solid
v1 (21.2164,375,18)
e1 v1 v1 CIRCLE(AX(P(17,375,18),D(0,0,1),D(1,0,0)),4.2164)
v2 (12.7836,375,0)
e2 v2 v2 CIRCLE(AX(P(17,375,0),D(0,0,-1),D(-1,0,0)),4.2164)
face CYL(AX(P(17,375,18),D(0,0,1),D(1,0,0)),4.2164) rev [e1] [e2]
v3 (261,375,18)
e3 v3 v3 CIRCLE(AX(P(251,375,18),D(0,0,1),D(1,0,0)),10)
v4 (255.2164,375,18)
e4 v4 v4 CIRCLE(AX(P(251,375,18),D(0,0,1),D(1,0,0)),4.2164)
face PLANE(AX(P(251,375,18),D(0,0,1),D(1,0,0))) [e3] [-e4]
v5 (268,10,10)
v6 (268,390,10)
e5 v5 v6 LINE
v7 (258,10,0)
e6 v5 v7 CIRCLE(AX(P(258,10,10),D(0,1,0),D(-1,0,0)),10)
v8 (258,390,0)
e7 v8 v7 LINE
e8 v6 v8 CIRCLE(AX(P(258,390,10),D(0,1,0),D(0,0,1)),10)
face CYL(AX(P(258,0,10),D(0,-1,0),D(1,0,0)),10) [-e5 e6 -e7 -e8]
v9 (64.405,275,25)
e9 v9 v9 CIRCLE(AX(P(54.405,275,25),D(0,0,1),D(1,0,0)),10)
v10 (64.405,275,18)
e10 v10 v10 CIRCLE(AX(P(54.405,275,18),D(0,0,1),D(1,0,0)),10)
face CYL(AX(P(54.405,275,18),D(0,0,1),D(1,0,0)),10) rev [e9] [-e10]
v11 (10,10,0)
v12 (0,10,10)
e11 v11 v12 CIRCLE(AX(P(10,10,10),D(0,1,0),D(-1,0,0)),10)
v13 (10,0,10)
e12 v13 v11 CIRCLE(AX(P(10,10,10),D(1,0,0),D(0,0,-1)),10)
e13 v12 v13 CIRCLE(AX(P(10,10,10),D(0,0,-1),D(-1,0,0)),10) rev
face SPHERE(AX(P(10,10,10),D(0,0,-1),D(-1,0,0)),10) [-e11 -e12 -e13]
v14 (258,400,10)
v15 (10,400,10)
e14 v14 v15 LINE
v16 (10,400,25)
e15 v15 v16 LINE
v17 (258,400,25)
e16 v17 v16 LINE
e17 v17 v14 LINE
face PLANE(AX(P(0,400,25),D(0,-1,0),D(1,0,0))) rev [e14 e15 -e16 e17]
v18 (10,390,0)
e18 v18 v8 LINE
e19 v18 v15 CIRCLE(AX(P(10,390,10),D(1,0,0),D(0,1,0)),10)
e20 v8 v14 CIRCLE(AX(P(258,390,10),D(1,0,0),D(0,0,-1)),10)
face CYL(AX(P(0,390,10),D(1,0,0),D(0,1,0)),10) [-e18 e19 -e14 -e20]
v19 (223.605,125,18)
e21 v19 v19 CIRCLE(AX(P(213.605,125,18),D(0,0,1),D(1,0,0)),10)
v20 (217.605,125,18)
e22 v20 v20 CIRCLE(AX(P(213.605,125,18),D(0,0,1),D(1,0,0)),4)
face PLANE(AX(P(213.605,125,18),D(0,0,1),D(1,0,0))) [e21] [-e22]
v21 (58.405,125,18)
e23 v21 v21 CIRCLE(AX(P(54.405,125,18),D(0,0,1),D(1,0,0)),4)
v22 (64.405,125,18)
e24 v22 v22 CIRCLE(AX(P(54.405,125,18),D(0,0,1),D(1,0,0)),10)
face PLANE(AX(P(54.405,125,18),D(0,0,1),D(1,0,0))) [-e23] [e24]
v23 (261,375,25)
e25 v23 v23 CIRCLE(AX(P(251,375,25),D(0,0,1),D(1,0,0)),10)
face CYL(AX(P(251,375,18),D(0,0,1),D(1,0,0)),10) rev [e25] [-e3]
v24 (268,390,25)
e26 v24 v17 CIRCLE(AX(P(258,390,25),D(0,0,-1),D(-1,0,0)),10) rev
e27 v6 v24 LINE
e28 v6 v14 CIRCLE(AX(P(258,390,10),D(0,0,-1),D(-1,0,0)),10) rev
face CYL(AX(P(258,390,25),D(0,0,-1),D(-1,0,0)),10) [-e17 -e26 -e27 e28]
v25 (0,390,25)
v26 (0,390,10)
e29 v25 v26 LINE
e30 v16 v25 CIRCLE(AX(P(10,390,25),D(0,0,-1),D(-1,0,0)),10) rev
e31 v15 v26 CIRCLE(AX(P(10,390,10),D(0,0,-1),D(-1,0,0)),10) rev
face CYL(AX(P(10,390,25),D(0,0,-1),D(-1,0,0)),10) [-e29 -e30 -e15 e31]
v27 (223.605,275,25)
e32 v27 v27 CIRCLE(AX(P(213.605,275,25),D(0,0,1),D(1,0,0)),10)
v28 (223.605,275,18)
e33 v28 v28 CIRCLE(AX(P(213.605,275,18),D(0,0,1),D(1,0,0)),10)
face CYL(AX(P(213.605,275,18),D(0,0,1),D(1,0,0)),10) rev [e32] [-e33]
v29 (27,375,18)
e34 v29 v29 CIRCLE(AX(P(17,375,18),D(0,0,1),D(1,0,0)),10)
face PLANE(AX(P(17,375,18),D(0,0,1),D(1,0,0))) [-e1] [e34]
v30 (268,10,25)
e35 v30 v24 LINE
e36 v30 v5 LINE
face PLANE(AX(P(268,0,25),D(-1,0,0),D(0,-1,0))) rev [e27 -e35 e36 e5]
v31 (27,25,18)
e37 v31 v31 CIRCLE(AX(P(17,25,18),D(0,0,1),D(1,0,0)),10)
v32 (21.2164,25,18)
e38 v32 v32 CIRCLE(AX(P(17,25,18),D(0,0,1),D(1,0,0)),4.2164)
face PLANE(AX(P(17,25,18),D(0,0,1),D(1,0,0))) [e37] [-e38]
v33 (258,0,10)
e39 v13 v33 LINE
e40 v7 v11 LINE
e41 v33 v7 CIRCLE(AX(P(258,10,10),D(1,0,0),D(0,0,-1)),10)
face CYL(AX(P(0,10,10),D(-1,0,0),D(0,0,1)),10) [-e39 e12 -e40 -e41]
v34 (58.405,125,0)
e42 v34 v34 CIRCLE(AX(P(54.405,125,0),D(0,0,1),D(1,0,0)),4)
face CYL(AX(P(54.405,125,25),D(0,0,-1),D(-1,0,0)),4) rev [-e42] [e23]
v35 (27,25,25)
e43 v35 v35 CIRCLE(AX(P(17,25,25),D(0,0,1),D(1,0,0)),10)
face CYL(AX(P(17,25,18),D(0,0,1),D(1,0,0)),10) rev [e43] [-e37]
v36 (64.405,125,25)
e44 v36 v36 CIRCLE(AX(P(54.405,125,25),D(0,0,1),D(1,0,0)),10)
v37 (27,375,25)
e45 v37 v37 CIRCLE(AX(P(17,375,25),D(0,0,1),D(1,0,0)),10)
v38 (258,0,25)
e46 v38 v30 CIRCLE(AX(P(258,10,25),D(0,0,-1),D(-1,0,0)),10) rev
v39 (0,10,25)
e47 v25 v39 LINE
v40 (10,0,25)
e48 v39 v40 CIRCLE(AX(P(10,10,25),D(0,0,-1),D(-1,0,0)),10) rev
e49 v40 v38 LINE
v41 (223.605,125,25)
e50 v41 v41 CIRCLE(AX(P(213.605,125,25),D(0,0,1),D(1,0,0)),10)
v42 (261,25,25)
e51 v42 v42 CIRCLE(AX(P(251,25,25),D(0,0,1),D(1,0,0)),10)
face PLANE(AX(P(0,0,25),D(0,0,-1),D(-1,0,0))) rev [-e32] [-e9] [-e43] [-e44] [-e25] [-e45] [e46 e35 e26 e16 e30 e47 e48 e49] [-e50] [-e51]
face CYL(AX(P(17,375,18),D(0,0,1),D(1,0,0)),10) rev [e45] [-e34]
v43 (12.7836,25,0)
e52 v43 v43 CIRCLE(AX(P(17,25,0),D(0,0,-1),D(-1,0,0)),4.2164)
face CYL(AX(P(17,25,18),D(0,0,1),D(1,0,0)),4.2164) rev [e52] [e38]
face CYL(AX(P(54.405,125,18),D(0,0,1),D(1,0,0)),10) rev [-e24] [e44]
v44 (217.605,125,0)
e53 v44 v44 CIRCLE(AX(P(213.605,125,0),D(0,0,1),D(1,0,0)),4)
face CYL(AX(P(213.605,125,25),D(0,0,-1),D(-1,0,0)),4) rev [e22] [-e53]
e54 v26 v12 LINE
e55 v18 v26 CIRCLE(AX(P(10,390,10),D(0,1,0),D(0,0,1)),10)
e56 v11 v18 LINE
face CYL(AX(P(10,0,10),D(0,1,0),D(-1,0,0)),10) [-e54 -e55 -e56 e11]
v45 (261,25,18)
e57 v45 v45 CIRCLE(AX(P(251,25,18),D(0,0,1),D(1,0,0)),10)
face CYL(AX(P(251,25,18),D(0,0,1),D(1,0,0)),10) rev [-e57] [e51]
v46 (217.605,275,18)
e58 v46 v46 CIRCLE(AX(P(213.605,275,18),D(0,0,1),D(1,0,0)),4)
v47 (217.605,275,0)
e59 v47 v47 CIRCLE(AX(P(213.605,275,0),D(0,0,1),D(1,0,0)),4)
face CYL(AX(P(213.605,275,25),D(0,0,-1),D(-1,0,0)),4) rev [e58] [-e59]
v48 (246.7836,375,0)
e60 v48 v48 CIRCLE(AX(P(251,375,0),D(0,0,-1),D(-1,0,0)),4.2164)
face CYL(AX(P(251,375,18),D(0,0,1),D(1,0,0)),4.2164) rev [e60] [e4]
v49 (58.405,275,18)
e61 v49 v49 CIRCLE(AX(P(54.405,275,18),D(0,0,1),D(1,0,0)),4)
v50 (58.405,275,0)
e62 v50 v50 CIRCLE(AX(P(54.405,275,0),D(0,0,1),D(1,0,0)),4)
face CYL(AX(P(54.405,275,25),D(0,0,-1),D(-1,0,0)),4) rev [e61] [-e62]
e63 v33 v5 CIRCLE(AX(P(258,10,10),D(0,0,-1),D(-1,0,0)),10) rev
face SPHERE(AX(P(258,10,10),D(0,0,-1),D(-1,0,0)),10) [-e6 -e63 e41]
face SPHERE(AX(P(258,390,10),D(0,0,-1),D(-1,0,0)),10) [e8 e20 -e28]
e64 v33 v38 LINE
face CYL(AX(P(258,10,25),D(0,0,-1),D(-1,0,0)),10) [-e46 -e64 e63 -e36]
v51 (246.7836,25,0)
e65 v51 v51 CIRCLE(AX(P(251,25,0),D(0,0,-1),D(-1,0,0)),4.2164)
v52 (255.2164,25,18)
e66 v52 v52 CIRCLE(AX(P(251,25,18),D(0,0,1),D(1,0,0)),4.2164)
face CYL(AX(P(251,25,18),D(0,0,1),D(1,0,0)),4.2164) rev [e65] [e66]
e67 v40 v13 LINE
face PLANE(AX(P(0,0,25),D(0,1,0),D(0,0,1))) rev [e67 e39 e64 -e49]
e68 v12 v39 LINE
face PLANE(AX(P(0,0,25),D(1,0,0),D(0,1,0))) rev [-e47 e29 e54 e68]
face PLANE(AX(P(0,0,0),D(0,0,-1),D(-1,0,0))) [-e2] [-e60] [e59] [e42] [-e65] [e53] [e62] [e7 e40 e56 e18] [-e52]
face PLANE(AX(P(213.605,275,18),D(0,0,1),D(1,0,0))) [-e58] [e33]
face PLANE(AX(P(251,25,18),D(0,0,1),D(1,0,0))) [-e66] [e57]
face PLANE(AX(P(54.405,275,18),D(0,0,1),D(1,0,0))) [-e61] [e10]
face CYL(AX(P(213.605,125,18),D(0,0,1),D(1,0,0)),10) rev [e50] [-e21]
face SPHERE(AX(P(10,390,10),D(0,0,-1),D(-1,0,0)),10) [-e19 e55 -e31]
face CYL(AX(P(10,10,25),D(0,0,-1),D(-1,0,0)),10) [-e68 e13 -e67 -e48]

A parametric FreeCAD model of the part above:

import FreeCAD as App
import Part
import Sketcher
Q = App.Units.Quantity


def edges_at(feature, points):
    """Names of the edges that pass closest to the given points."""
    edges = feature.Shape.Edges
    near = lambda p: min(range(len(edges)), key=lambda i: edges[i].distToShape(Part.Vertex(*p))[0])
    return sorted({f"Edge{near(p) + 1}" for p in points})

doc = App.newDocument("Part")
body = doc.addObject("PartDesign::Body", "Body")

# Sketch on XY plane
sketch1 = body.newObject("Sketcher::SketchObject", "Sketch")
sketch1.AttachmentSupport = (doc.getObject("XY_Plane"), [""])
sketch1.MapMode = "FlatFace"
sketch1.addGeometry([
    Part.LineSegment(App.Vector(0, 400, 0), App.Vector(0, 0, 0)),  # 0
    Part.LineSegment(App.Vector(0, 0, 0), App.Vector(268, 0, 0)),  # 1
    Part.LineSegment(App.Vector(268, 0, 0), App.Vector(268, 400, 0)),  # 2
    Part.LineSegment(App.Vector(268, 400, 0), App.Vector(0, 400, 0)),  # 3
    Part.Circle(App.Vector(54.4, 125, 0), App.Vector(0, 0, 1), 4),  # 4
    Part.Circle(App.Vector(213.6, 125, 0), App.Vector(0, 0, 1), 4),  # 5
    Part.Circle(App.Vector(54.4, 275, 0), App.Vector(0, 0, 1), 4),  # 6
    Part.Circle(App.Vector(213.6, 275, 0), App.Vector(0, 0, 1), 4),  # 7
], False)
sketch1.addConstraint([
    Sketcher.Constraint("Coincident", 0, 2, 1, 1),
    Sketcher.Constraint("Coincident", 1, 2, 2, 1),
    Sketcher.Constraint("Coincident", 2, 2, 3, 1),
    Sketcher.Constraint("Coincident", 3, 2, 0, 1),
    Sketcher.Constraint("Vertical", 0),
    Sketcher.Constraint("Horizontal", 1),
    Sketcher.Constraint("Vertical", 2),
    Sketcher.Constraint("Horizontal", 3),
    Sketcher.Constraint("Coincident", 0, 2, -1, 1),
    Sketcher.Constraint("Equal", 4, 5),
    Sketcher.Constraint("Equal", 5, 6),
    Sketcher.Constraint("Equal", 6, 7),
    Sketcher.Constraint("Horizontal", 4, 3, 5, 3),
    Sketcher.Constraint("Horizontal", 6, 3, 7, 3),
    Sketcher.Constraint("Vertical", 4, 3, 6, 3),
    Sketcher.Constraint("Vertical", 5, 3, 7, 3),
    Sketcher.Constraint("Diameter", 4, Q("8 mm")),
    Sketcher.Constraint("DistanceX", 1, 1, 1, 2, Q("268 mm")),
    Sketcher.Constraint("DistanceY", 0, 2, 0, 1, Q("400 mm")),
    Sketcher.Constraint("DistanceY", -1, 1, 4, 3, Q("125 mm")),
    Sketcher.Constraint("DistanceY", -1, 1, 6, 3, Q("275 mm")),
    Sketcher.Constraint("DistanceX", 4, 3, 5, 3, Q("159.2 mm")),
    Sketcher.Constraint("DistanceX", -1, 1, 4, 3, Q("54.405 mm")),
])
pad1 = body.newObject("PartDesign::Pad", "Pad")
pad1.Profile = sketch1
pad1.Length = 25

# Sketch on XY plane
sketch2 = body.newObject("Sketcher::SketchObject", "Sketch001")
sketch2.AttachmentSupport = (doc.getObject("XY_Plane"), [""])
sketch2.MapMode = "FlatFace"
sketch2.AttachmentOffset = App.Placement(App.Vector(0, 0, 25), App.Rotation())
sketch2.addGeometry([
    Part.Circle(App.Vector(54, 275, 0), App.Vector(0, 0, 1), 10),
    Part.Circle(App.Vector(214, 275, 0), App.Vector(0, 0, 1), 10),
    Part.Circle(App.Vector(214, 125, 0), App.Vector(0, 0, 1), 10),
    Part.Circle(App.Vector(54, 125, 0), App.Vector(0, 0, 1), 10),
], False)
sketch2.addConstraint([
    Sketcher.Constraint("Equal", 0, 1),
    Sketcher.Constraint("Equal", 1, 2),
    Sketcher.Constraint("Equal", 2, 3),
    Sketcher.Constraint("Horizontal", 0, 3, 1, 3),
    Sketcher.Constraint("Horizontal", 2, 3, 3, 3),
    Sketcher.Constraint("Vertical", 1, 3, 2, 3),
    Sketcher.Constraint("Vertical", 0, 3, 3, 3),
    Sketcher.Constraint("Diameter", 0, Q("20 mm")),
    Sketcher.Constraint("DistanceY", -1, 1, 0, 3, Q("275 mm")),
    Sketcher.Constraint("DistanceY", -1, 1, 2, 3, Q("125 mm")),
    Sketcher.Constraint("DistanceX", 0, 3, 1, 3, Q("159.2 mm")),
    Sketcher.Constraint("DistanceX", -1, 1, 0, 3, Q("54.405 mm")),
])
pocket1 = body.newObject("PartDesign::Pocket", "Pocket")
pocket1.Profile = sketch2
pocket1.Length = 7
doc.recompute()

fillet = body.newObject("PartDesign::Fillet", "Fillet")
fillet.Base = (pocket1, edges_at(pocket1, [
    (0, 400, 12.5),
    (268, 400, 12.5),
    (268, 0, 12.5),
    (0, 0, 12.5),
]))
fillet.Radius = 10
doc.recompute()

fillet2 = body.newObject("PartDesign::Fillet", "Fillet001")
fillet2.Base = (fillet, edges_at(fillet, [
    (268, 200, 0),
    (0, 200, 0),
    (134, 400, 0),
    (134, 0, 0),
    (2.929, 397.071, 0),
    (265.071, 397.071, 0),
    (2.929, 2.929, 0),
    (265.071, 2.929, 0),
]))
fillet2.Radius = 10

# Sketch on XY plane
sketch3 = body.newObject("Sketcher::SketchObject", "Sketch002")
sketch3.AttachmentSupport = (doc.getObject("XY_Plane"), [""])
sketch3.MapMode = "FlatFace"
sketch3.AttachmentOffset = App.Placement(App.Vector(0, 0, 25), App.Rotation())
sketch3.addGeometry([
    Part.Circle(App.Vector(17, 375, 0), App.Vector(0, 0, 1), 10),
    Part.Circle(App.Vector(251, 375, 0), App.Vector(0, 0, 1), 10),
    Part.Circle(App.Vector(251, 25, 0), App.Vector(0, 0, 1), 10),
    Part.Circle(App.Vector(17, 25, 0), App.Vector(0, 0, 1), 10),
], False)
sketch3.addConstraint([
    Sketcher.Constraint("Equal", 0, 1),
    Sketcher.Constraint("Equal", 1, 2),
    Sketcher.Constraint("Equal", 2, 3),
    Sketcher.Constraint("Horizontal", 0, 3, 1, 3),
    Sketcher.Constraint("Horizontal", 2, 3, 3, 3),
    Sketcher.Constraint("Vertical", 1, 3, 2, 3),
    Sketcher.Constraint("Vertical", 0, 3, 3, 3),
    Sketcher.Constraint("Diameter", 0, Q("20 mm")),
    Sketcher.Constraint("DistanceX", -1, 1, 0, 3, Q("17 mm")),
    Sketcher.Constraint("DistanceY", -1, 1, 0, 3, Q("375 mm")),
    Sketcher.Constraint("DistanceX", -1, 1, 1, 3, Q("251 mm")),
    Sketcher.Constraint("DistanceY", -1, 1, 2, 3, Q("25 mm")),
])
pocket2 = body.newObject("PartDesign::Pocket", "Pocket001")
pocket2.Profile = sketch3
pocket2.Length = 7

# Sketch on XY plane
sketch4 = body.newObject("Sketcher::SketchObject", "Sketch003")
sketch4.AttachmentSupport = (doc.getObject("XY_Plane"), [""])
sketch4.MapMode = "FlatFace"
sketch4.AttachmentOffset = App.Placement(App.Vector(0, 0, 18), App.Rotation())
sketch4.addGeometry([
    Part.Circle(App.Vector(17, 25, 0), App.Vector(0, 0, 1), 4.2),
    Part.Circle(App.Vector(251, 25, 0), App.Vector(0, 0, 1), 4.2),
    Part.Circle(App.Vector(251, 375, 0), App.Vector(0, 0, 1), 4.2),
    Part.Circle(App.Vector(17, 375, 0), App.Vector(0, 0, 1), 4.2),
], False)
sketch4.addConstraint([
    Sketcher.Constraint("Equal", 0, 1),
    Sketcher.Constraint("Equal", 1, 2),
    Sketcher.Constraint("Equal", 2, 3),
    Sketcher.Constraint("Horizontal", 0, 3, 1, 3),
    Sketcher.Constraint("Horizontal", 2, 3, 3, 3),
    Sketcher.Constraint("Vertical", 1, 3, 2, 3),
    Sketcher.Constraint("Vertical", 0, 3, 3, 3),
    Sketcher.Constraint("DistanceX", -1, 1, 0, 3, Q("17 mm")),
    Sketcher.Constraint("DistanceY", -1, 1, 0, 3, Q("25 mm")),
    Sketcher.Constraint("DistanceX", -1, 1, 1, 3, Q("251 mm")),
    Sketcher.Constraint("DistanceY", -1, 1, 2, 3, Q("375 mm")),
    Sketcher.Constraint("Diameter", 0, Q("8.4328 mm")),
])
doc.recompute()
hole = body.newObject("PartDesign::Hole", "Hole")
hole.Profile = sketch4
hole.ThreadType = "None"
hole.Diameter = 8.4328
hole.DepthType = "Dimension"
hole.Depth = 18
hole.DrillPoint = "Flat"

doc.recompute()
